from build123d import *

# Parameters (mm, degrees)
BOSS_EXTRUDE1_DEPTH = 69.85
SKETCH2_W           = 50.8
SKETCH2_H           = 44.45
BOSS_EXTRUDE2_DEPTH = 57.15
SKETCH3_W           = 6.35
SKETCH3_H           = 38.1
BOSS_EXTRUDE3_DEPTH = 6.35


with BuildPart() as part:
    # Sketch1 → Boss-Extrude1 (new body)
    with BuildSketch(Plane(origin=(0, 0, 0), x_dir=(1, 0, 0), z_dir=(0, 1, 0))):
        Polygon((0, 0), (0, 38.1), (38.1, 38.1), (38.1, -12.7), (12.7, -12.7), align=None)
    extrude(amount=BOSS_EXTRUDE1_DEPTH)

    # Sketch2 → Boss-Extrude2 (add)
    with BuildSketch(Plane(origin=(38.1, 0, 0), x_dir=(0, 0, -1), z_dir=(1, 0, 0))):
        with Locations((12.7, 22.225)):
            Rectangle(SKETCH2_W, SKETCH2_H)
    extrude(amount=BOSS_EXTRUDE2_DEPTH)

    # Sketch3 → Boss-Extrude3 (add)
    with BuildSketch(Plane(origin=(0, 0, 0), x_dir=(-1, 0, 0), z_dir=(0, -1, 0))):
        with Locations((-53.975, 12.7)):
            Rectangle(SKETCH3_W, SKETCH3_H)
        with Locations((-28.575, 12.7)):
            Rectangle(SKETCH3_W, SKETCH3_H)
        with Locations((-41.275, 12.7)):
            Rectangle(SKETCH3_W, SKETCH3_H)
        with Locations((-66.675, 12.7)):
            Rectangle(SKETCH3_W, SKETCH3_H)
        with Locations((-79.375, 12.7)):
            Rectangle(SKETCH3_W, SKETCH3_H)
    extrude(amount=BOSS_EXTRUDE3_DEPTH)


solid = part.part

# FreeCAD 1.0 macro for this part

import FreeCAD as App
import Part
import Sketcher
from FreeCAD import Vector
Q = App.Units.Quantity


def add_polygon(sketch, points):
    """Adds a closed chain of lines whose ends are joined by coincident constraints."""
    first, n = sketch.GeometryCount, len(points)
    for a, b in zip(points, points[1:] + points[:1]):
        sketch.addGeometry(Part.LineSegment(App.Vector(*a, 0), App.Vector(*b, 0)), False)
    for i in range(n):
        sketch.addConstraint(Sketcher.Constraint("Coincident", first + i, 2, first + (i + 1) % n, 1))

doc = App.newDocument("Part")
params = doc.addObject("Spreadsheet::Sheet", "Params")
for row, (alias, value) in enumerate([
    ("sketch1_width", "1 in"),
    ("sketch1_height", "2 in"),
    ("sketch1_width2", "1.5 in"),
    ("pad1_length", "2.75 in"),
    ("sketch2_height", "2 in"),
    ("sketch2_width", "1.75 in"),
    ("pad2_length", "2.25 in"),
    ("sketch3_height", "1.5 in"),
    ("sketch3_width", "0.25 in"),
    ("pad3_length", "0.25 in"),
], start=1):
    params.set(f"A{row}", alias)
    params.set(f"B{row}", "=" + value)
    params.setAlias(f"B{row}", alias)

body = doc.addObject("PartDesign::Body", "Body")

sketch1 = doc.addObject("Sketcher::SketchObject", "Sketch")
body.addObject(sketch1)
sketch1.AttachmentSupport = (doc.XZ_Plane, [""])
sketch1.MapMode = "FlatFace"
add_polygon(sketch1, [(0, -38), (0, 0), (13, 13), (38, 13), (38, -38)])
sketch1.addConstraint(Sketcher.Constraint("Vertical", 0))
sketch1.addConstraint(Sketcher.Constraint("Horizontal", 2))
sketch1.addConstraint(Sketcher.Constraint("Vertical", 3))
sketch1.addConstraint(Sketcher.Constraint("Horizontal", 4))
sketch1.addConstraint(Sketcher.Constraint("Coincident", 0, 2, -1, 1))
sketch1.addConstraint(Sketcher.Constraint("Equal", 4, 0))
sketch1.addConstraint(Sketcher.Constraint("DistanceX", 2, 1, 2, 2, Q("1 in")))
sketch1.addConstraint(Sketcher.Constraint("DistanceY", 3, 2, 3, 1, Q("2 in")))
sketch1.addConstraint(Sketcher.Constraint("DistanceX", 4, 2, 4, 1, Q("1.5 in")))
sketch1.setExpression("Constraints[11]", "Params.sketch1_width")
sketch1.setExpression("Constraints[12]", "Params.sketch1_height")
sketch1.setExpression("Constraints[13]", "Params.sketch1_width2")
pad1 = doc.addObject("PartDesign::Pad", "Pad")
body.addObject(pad1)
pad1.Profile = sketch1
pad1.setExpression("Length", "Params.pad1_length")
pad1.Reversed = True

sketch2 = doc.addObject("Sketcher::SketchObject", "Sketch001")
body.addObject(sketch2)
sketch2.AttachmentSupport = (doc.YZ_Plane, [""])
sketch2.MapMode = "FlatFace"
sketch2.AttachmentOffset = App.Placement(Vector(0, 0, 1.5 * 25.4), App.Rotation())
add_polygon(sketch2, [(44, 13), (0, 13), (0, -38), (44, -38)])
sketch2.addConstraint(Sketcher.Constraint("Horizontal", 0))
sketch2.addConstraint(Sketcher.Constraint("Vertical", 1))
sketch2.addConstraint(Sketcher.Constraint("Horizontal", 2))
sketch2.addConstraint(Sketcher.Constraint("Vertical", 3))
sketch2.addConstraint(Sketcher.Constraint("PointOnObject", 0, 2, -2))
sketch2.addConstraint(Sketcher.Constraint("DistanceY", 1, 2, 1, 1, Q("2 in")))
sketch2.addConstraint(Sketcher.Constraint("DistanceX", 0, 2, 0, 1, Q("1.75 in")))
sketch2.addConstraint(Sketcher.Constraint("DistanceY", -1, 1, 0, 2, Q("0.5 in")))
sketch2.setExpression("Constraints[9]", "Params.sketch2_height")
sketch2.setExpression("Constraints[10]", "Params.sketch2_width")
pad2 = doc.addObject("PartDesign::Pad", "Pad001")
body.addObject(pad2)
pad2.Profile = sketch2
pad2.setExpression("Length", "Params.pad2_length")

sketch3 = doc.addObject("Sketcher::SketchObject", "Sketch002")
body.addObject(sketch3)
sketch3.AttachmentSupport = (doc.XZ_Plane, [""])
sketch3.MapMode = "FlatFace"
add_polygon(sketch3, [(57, -32), (57, 6), (51, 6), (51, -32)])
add_polygon(sketch3, [(32, -32), (32, 6), (25, 6), (25, -32)])
add_polygon(sketch3, [(44, -32), (44, 6), (38, 6), (38, -32)])
add_polygon(sketch3, [(70, -32), (70, 6), (64, 6), (64, -32)])
add_polygon(sketch3, [(83, -32), (83, 6), (76, 6), (76, -32)])
sketch3.addConstraint(Sketcher.Constraint("Vertical", 0))
sketch3.addConstraint(Sketcher.Constraint("Horizontal", 1))
sketch3.addConstraint(Sketcher.Constraint("Vertical", 2))
sketch3.addConstraint(Sketcher.Constraint("Horizontal", 3))
sketch3.addConstraint(Sketcher.Constraint("Vertical", 4))
sketch3.addConstraint(Sketcher.Constraint("Horizontal", 5))
sketch3.addConstraint(Sketcher.Constraint("Vertical", 6))
sketch3.addConstraint(Sketcher.Constraint("Horizontal", 7))
sketch3.addConstraint(Sketcher.Constraint("Vertical", 8))
sketch3.addConstraint(Sketcher.Constraint("Horizontal", 9))
sketch3.addConstraint(Sketcher.Constraint("Vertical", 10))
sketch3.addConstraint(Sketcher.Constraint("Horizontal", 11))
sketch3.addConstraint(Sketcher.Constraint("Vertical", 12))
sketch3.addConstraint(Sketcher.Constraint("Horizontal", 13))
sketch3.addConstraint(Sketcher.Constraint("Vertical", 14))
sketch3.addConstraint(Sketcher.Constraint("Horizontal", 15))
sketch3.addConstraint(Sketcher.Constraint("Vertical", 16))
sketch3.addConstraint(Sketcher.Constraint("Horizontal", 17))
sketch3.addConstraint(Sketcher.Constraint("Vertical", 18))
sketch3.addConstraint(Sketcher.Constraint("Horizontal", 19))
sketch3.addConstraint(Sketcher.Constraint("Horizontal", 1, 2, 4, 2))
sketch3.addConstraint(Sketcher.Constraint("Horizontal", 3, 2, 6, 2))
sketch3.addConstraint(Sketcher.Constraint("Horizontal", 5, 2, 8, 2))
sketch3.addConstraint(Sketcher.Constraint("Horizontal", 7, 2, 10, 2))
sketch3.addConstraint(Sketcher.Constraint("Horizontal", 9, 2, 12, 2))
sketch3.addConstraint(Sketcher.Constraint("Horizontal", 11, 2, 14, 2))
sketch3.addConstraint(Sketcher.Constraint("Horizontal", 13, 2, 16, 2))
sketch3.addConstraint(Sketcher.Constraint("Horizontal", 15, 2, 18, 2))
sketch3.addConstraint(Sketcher.Constraint("Equal", 3, 5))
sketch3.addConstraint(Sketcher.Constraint("Equal", 7, 9))
sketch3.addConstraint(Sketcher.Constraint("Equal", 11, 13))
sketch3.addConstraint(Sketcher.Constraint("Equal", 15, 17))
sketch3.addConstraint(Sketcher.Constraint("DistanceY", 0, 1, 0, 2, Q("1.5 in")))
sketch3.addConstraint(Sketcher.Constraint("DistanceX", -1, 1, 1, 2, Q("2 in")))
sketch3.addConstraint(Sketcher.Constraint("DistanceX", -1, 1, 5, 2, Q("1 in")))
sketch3.addConstraint(Sketcher.Constraint("DistanceX", -1, 1, 17, 2, Q("3 in")))
sketch3.addConstraint(Sketcher.Constraint("DistanceX", 8, 2, 12, 2, Q("1 in")))
sketch3.addConstraint(Sketcher.Constraint("DistanceX", 1, 2, 1, 1, Q("0.25 in")))
sketch3.addConstraint(Sketcher.Constraint("DistanceX", -1, 1, 9, 2, Q("1.5 in")))
sketch3.addConstraint(Sketcher.Constraint("DistanceY", -1, 1, 0, 2, Q("0.25 in")))
sketch3.setExpression("Constraints[52]", "Params.sketch3_height")
sketch3.setExpression("Constraints[57]", "Params.sketch3_width")
pad3 = doc.addObject("PartDesign::Pad", "Pad002")
body.addObject(pad3)
pad3.Profile = sketch3
pad3.setExpression("Length", "Params.pad3_length")

doc.recompute()
